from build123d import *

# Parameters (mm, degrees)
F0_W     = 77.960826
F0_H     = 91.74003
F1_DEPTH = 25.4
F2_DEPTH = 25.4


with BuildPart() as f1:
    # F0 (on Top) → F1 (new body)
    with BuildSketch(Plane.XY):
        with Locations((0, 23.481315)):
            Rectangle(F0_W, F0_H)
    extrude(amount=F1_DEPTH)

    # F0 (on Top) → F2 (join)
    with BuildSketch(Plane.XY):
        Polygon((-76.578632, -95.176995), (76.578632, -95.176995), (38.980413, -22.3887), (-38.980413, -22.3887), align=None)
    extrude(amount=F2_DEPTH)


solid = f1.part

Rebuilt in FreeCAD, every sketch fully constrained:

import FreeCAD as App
import Part
import Sketcher

V = App.Vector
Q = App.Units.Quantity

doc = App.newDocument("Part")
body = doc.addObject("PartDesign::Body", "Body")

# Sketch on XY plane
sketch1 = doc.addObject("Sketcher::SketchObject", "Sketch")
body.addObject(sketch1)
sketch1.AttachmentSupport = (doc.XY_Plane, [""])
sketch1.MapMode = "FlatFace"
sketch1.addGeometry([
    Part.LineSegment(V(-39, 69, 0), V(-39, -22, 0)),
    Part.LineSegment(V(-39, -22, 0), V(39, -22, 0)),
    Part.LineSegment(V(39, -22, 0), V(39, 69, 0)),
    Part.LineSegment(V(39, 69, 0), V(-39, 69, 0)),
], False)
sketch1.addConstraint([
    Sketcher.Constraint("Coincident", 0, 2, 1, 1),
    Sketcher.Constraint("Coincident", 1, 2, 2, 1),
    Sketcher.Constraint("Coincident", 2, 2, 3, 1),
    Sketcher.Constraint("Coincident", 3, 2, 0, 1),
    Sketcher.Constraint("Vertical", 0),
    Sketcher.Constraint("Horizontal", 1),
    Sketcher.Constraint("Vertical", 2),
    Sketcher.Constraint("Horizontal", 3),
    Sketcher.Constraint("DistanceY", 0, 2, 0, 1, Q("91.74003 mm")),
    Sketcher.Constraint("DistanceY", 0, 2, -1, 1, Q("22.3887 mm")),
    Sketcher.Constraint("DistanceX", 1, 1, 1, 2, Q("77.960826 mm")),
    Sketcher.Constraint("DistanceX", 0, 2, -1, 1, Q("38.980413 mm")),
])
pad1 = doc.addObject("PartDesign::Pad", "Pad")
body.addObject(pad1)
pad1.Profile = sketch1
pad1.Length = Q("1 in")

# Sketch on XY plane
sketch2 = doc.addObject("Sketcher::SketchObject", "Sketch001")
body.addObject(sketch2)
sketch2.AttachmentSupport = (doc.XY_Plane, [""])
sketch2.MapMode = "FlatFace"
sketch2.addGeometry([
    Part.LineSegment(V(-77, -95, 0), V(77, -95, 0)),
    Part.LineSegment(V(77, -95, 0), V(39, -22, 0)),
    Part.LineSegment(V(39, -22, 0), V(-39, -22, 0)),
    Part.LineSegment(V(-39, -22, 0), V(-77, -95, 0)),
], False)
sketch2.addConstraint([
    Sketcher.Constraint("Coincident", 0, 2, 1, 1),
    Sketcher.Constraint("Coincident", 1, 2, 2, 1),
    Sketcher.Constraint("Coincident", 2, 2, 3, 1),
    Sketcher.Constraint("Coincident", 3, 2, 0, 1),
    Sketcher.Constraint("Horizontal", 0),
    Sketcher.Constraint("Horizontal", 2),
    Sketcher.Constraint("Equal", 1, 3),
    Sketcher.Constraint("DistanceY", 1, 2, -1, 1, Q("22.3887 mm")),
    Sketcher.Constraint("DistanceX", 0, 1, 0, 2, Q("153.157264 mm")),
    Sketcher.Constraint("DistanceX", 2, 2, 2, 1, Q("77.960826 mm")),
    Sketcher.Constraint("DistanceX", -1, 1, 0, 2, Q("76.578632 mm")),
    Sketcher.Constraint("Distance", 1, Q("81.925344 mm")),
])
pad2 = doc.addObject("PartDesign::Pad", "Pad001")
body.addObject(pad2)
pad2.Profile = sketch2
pad2.Length = Q("1 in")

doc.recompute()
